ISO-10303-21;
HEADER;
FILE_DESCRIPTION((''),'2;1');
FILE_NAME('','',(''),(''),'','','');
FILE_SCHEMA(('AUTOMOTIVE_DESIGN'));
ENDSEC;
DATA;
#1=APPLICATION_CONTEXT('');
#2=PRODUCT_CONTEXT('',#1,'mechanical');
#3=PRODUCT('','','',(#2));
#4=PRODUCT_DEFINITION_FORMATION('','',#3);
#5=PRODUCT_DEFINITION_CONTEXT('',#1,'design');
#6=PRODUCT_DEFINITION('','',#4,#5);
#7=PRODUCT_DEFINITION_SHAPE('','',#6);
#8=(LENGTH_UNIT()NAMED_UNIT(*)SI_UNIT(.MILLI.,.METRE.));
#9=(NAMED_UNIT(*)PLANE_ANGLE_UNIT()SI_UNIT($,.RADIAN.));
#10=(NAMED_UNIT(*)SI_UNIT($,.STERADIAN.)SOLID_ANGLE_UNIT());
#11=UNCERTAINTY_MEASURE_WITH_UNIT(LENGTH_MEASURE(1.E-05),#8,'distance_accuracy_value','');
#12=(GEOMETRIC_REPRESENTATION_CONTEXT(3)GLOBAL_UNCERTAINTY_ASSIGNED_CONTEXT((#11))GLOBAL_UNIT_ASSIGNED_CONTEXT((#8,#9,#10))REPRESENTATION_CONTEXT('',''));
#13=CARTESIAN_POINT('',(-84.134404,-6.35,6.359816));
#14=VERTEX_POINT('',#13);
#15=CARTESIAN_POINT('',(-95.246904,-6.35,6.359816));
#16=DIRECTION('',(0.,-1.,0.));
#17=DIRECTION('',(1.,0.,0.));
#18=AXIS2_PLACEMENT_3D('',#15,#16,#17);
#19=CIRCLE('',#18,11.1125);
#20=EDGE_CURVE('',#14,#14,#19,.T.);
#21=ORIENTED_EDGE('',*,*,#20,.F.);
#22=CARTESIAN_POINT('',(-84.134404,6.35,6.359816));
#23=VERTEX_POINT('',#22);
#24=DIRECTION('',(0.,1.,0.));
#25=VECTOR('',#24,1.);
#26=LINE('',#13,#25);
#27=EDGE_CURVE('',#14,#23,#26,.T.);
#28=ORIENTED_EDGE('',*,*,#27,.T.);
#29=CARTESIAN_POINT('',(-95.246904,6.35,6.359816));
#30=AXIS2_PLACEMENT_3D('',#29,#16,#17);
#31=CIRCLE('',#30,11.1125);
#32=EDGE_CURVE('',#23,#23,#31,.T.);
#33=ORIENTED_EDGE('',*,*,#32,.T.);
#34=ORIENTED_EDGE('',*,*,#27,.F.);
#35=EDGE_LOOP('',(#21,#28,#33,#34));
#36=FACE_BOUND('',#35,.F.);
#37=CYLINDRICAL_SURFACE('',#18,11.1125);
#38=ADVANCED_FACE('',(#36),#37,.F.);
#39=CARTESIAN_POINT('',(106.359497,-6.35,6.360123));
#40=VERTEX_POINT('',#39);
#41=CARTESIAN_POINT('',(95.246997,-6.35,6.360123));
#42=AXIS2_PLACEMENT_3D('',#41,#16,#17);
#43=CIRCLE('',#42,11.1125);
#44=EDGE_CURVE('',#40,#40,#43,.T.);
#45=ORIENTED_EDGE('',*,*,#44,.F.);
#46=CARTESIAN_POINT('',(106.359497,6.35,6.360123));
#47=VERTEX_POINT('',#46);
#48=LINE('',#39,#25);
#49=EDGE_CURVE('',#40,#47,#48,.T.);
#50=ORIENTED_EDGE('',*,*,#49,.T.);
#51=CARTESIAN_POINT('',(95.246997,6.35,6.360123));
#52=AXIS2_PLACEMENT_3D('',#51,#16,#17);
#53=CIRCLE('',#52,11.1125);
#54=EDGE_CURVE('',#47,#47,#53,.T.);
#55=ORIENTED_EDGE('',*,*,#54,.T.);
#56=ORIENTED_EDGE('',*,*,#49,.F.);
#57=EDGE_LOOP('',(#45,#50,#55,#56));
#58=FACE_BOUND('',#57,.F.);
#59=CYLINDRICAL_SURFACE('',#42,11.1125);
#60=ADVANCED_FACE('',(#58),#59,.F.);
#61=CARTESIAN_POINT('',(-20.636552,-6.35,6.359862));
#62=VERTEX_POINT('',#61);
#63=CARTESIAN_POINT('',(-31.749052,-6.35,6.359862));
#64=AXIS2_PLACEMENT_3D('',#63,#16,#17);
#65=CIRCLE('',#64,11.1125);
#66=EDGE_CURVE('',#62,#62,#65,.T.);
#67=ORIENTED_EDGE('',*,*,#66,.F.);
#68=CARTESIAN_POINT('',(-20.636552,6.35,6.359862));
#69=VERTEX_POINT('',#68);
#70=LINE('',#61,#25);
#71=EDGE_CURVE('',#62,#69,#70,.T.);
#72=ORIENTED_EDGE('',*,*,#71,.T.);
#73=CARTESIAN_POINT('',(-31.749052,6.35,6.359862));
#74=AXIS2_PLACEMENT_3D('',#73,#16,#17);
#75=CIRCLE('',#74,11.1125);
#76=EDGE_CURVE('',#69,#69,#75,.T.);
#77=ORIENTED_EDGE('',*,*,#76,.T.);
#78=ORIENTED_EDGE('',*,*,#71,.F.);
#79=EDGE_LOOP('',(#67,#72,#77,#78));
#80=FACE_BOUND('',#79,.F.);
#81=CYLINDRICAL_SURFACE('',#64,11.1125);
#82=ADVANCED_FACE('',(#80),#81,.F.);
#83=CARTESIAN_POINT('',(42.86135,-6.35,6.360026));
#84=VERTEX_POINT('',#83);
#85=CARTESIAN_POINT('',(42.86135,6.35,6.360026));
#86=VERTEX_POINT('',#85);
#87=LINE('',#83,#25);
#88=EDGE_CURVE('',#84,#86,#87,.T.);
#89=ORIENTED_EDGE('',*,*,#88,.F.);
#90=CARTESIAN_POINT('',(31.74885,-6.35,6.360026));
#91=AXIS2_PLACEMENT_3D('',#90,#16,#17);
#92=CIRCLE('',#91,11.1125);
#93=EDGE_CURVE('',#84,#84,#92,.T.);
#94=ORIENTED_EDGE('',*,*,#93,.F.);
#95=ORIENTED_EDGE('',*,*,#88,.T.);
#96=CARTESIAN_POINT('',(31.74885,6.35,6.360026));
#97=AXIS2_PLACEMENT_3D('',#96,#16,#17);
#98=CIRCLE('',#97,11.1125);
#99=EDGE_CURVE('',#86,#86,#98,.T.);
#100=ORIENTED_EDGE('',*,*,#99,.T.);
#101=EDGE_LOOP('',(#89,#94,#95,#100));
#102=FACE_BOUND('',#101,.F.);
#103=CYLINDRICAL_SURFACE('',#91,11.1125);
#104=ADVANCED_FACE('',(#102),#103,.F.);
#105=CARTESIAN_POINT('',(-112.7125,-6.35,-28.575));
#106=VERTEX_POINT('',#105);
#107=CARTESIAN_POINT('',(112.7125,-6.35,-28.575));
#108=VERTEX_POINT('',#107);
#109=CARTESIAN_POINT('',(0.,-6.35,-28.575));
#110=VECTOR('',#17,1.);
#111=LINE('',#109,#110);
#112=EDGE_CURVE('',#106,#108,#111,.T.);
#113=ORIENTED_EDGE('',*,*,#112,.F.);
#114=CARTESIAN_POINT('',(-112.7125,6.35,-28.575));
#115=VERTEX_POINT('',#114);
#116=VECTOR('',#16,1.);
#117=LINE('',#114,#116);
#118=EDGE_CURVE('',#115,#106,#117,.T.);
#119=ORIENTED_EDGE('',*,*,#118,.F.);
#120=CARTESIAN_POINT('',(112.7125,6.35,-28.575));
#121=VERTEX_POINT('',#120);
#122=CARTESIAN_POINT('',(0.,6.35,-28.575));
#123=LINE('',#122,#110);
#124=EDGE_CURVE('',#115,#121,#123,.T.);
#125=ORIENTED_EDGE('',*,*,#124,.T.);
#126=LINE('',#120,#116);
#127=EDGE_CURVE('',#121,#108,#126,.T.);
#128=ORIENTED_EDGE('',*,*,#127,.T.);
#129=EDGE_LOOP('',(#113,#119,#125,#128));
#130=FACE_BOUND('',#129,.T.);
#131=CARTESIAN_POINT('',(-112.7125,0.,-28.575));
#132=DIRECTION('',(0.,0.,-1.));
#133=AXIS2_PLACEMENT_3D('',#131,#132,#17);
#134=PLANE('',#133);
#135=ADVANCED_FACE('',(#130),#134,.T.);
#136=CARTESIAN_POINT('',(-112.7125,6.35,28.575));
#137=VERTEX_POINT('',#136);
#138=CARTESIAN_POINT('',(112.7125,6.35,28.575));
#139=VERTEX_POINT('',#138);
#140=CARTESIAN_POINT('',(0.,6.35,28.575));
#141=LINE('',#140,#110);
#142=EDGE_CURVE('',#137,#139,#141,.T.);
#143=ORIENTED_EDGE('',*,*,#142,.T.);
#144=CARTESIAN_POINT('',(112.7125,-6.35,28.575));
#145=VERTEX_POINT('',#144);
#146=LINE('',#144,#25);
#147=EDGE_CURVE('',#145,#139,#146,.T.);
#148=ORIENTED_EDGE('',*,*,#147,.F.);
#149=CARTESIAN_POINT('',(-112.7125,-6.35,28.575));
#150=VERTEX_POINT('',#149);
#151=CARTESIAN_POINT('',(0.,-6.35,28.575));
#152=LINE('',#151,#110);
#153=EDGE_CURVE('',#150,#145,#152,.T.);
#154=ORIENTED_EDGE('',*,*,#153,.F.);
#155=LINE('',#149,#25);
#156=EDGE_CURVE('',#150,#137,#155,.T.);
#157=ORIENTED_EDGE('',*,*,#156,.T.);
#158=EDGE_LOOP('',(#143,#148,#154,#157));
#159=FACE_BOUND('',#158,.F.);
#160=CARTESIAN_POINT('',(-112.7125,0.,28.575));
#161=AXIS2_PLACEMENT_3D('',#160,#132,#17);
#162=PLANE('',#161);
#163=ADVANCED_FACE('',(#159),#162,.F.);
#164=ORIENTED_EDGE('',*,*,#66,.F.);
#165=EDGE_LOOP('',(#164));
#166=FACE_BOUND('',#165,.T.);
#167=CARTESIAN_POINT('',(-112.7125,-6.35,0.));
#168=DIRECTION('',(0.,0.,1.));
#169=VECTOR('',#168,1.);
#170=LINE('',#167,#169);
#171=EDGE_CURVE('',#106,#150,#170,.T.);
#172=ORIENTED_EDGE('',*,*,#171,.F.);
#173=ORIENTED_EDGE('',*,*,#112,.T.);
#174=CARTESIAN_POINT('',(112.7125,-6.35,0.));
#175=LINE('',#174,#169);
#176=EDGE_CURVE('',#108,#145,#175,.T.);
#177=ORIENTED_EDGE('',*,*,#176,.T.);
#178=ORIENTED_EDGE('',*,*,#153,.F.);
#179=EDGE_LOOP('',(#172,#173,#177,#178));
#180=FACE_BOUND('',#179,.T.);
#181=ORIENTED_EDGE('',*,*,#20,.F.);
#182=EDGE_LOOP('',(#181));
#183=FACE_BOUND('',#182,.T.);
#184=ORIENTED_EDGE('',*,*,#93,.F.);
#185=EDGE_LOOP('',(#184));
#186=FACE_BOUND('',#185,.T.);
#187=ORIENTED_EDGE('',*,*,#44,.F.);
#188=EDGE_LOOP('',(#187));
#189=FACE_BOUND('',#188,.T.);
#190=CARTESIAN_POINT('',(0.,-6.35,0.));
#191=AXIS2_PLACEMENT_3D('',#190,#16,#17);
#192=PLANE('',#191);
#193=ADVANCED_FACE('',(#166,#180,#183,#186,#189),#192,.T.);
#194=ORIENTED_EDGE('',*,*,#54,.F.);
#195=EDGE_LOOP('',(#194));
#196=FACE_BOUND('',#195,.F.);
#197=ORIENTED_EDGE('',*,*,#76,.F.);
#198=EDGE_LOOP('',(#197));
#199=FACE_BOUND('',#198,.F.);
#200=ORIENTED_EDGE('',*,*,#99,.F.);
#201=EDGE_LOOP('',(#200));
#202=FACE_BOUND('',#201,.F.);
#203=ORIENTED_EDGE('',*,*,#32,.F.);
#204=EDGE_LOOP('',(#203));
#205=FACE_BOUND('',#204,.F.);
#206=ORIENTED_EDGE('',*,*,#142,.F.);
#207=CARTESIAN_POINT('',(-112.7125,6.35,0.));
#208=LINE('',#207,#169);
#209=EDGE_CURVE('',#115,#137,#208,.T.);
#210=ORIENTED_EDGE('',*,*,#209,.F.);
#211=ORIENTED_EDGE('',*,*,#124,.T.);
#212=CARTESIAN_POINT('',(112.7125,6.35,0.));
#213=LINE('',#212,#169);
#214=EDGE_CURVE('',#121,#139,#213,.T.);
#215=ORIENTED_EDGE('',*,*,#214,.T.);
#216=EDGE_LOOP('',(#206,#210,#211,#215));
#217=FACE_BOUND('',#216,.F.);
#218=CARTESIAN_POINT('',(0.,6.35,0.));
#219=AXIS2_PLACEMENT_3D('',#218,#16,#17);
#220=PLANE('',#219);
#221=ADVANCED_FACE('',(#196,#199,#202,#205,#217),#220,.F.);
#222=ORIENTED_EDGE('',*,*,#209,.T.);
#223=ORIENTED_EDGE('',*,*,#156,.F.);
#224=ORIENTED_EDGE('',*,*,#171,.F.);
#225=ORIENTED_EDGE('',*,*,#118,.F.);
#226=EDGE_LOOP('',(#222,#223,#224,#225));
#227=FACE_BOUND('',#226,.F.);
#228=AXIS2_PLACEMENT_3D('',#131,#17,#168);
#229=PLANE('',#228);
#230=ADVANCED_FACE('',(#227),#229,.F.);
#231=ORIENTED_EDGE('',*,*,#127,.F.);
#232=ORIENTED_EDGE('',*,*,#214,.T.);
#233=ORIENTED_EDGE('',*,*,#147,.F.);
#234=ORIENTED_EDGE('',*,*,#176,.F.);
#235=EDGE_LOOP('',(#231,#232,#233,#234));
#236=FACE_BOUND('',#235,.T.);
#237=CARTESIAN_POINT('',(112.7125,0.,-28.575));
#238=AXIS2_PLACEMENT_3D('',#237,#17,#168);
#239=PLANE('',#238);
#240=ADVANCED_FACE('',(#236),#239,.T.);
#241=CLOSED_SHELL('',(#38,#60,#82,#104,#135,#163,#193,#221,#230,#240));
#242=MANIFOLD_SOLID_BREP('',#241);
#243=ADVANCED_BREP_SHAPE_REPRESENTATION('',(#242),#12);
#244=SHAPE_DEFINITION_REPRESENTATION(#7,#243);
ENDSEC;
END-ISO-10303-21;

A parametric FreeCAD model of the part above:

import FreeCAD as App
import Part
import Sketcher
Q = App.Units.Quantity

doc = App.newDocument("Part")
body = doc.addObject("PartDesign::Body", "Body")

# Sketch on XZ plane
sketch1 = body.newObject("Sketcher::SketchObject", "Sketch")
sketch1.AttachmentSupport = (doc.getObject("XZ_Plane"), [""])
sketch1.MapMode = "FlatFace"
sketch1.addGeometry([
    Part.LineSegment(App.Vector(-113, 29, 0), App.Vector(-113, -29, 0)),
    Part.LineSegment(App.Vector(-113, -29, 0), App.Vector(113, -29, 0)),
    Part.LineSegment(App.Vector(113, -29, 0), App.Vector(113, 29, 0)),
    Part.LineSegment(App.Vector(113, 29, 0), App.Vector(-113, 29, 0)),
], False)
sketch1.addConstraint([
    Sketcher.Constraint("Coincident", 0, 2, 1, 1),
    Sketcher.Constraint("Coincident", 1, 2, 2, 1),
    Sketcher.Constraint("Coincident", 2, 2, 3, 1),
    Sketcher.Constraint("Coincident", 3, 2, 0, 1),
    Sketcher.Constraint("Vertical", 0),
    Sketcher.Constraint("Horizontal", 1),
    Sketcher.Constraint("Vertical", 2),
    Sketcher.Constraint("Horizontal", 3),
    Sketcher.Constraint("Symmetric", 0, 2, 2, 2, -1, 1),
    Sketcher.Constraint("DistanceY", 0, 2, 0, 1, Q("2.25 in")),
    Sketcher.Constraint("DistanceX", 1, 1, 1, 2, Q("8.875 in")),
])
pad1 = body.newObject("PartDesign::Pad", "Pad")
pad1.Profile = sketch1
pad1.Length = Q("0.5 in")
pad1.Midplane = True

# Sketch on XZ plane
sketch2 = body.newObject("Sketcher::SketchObject", "Sketch001")
sketch2.AttachmentSupport = (doc.getObject("XZ_Plane"), [""])
sketch2.MapMode = "FlatFace"
sketch2.AttachmentOffset = App.Placement(App.Vector(0, 0, 0.25 * 25.4), App.Rotation())
sketch2.addGeometry([
    Part.Circle(App.Vector(-95, 6, 0), App.Vector(0, 0, 1), 11),
    Part.Circle(App.Vector(-32, 6, 0), App.Vector(0, 0, 1), 11),
    Part.Circle(App.Vector(32, 6, 0), App.Vector(0, 0, 1), 11),
    Part.Circle(App.Vector(95, 6, 0), App.Vector(0, 0, 1), 11),
], False)
sketch2.addConstraint([
    Sketcher.Constraint("Equal", 0, 1),
    Sketcher.Constraint("Equal", 1, 2),
    Sketcher.Constraint("Equal", 2, 3),
    Sketcher.Constraint("Diameter", 0, Q("0.875 in")),
    Sketcher.Constraint("DistanceX", 1, 3, 2, 3, Q("63.497902 mm")),
    Sketcher.Constraint("DistanceX", 0, 3, 3, 3, Q("190.4939 mm")),
    Sketcher.Constraint("DistanceX", 1, 3, -1, 1, Q("31.749052 mm")),
    Sketcher.Constraint("DistanceY", -1, 1, 1, 3, Q("6.359862 mm")),
    Sketcher.Constraint("DistanceX", 0, 3, 1, 3, Q("63.497852 mm")),
    Sketcher.Constraint("DistanceY", 0, 3, 2, 3, Q("0.00021 mm")),
    Sketcher.Constraint("DistanceY", 1, 3, 3, 3, Q("0.000261 mm")),
    Sketcher.Constraint("DistanceY", -1, 1, 0, 3, Q("6.359816 mm")),
])
pocket1 = body.newObject("PartDesign::Pocket", "Pocket")
pocket1.Profile = sketch2
pocket1.Type = "ThroughAll"

doc.recompute()
